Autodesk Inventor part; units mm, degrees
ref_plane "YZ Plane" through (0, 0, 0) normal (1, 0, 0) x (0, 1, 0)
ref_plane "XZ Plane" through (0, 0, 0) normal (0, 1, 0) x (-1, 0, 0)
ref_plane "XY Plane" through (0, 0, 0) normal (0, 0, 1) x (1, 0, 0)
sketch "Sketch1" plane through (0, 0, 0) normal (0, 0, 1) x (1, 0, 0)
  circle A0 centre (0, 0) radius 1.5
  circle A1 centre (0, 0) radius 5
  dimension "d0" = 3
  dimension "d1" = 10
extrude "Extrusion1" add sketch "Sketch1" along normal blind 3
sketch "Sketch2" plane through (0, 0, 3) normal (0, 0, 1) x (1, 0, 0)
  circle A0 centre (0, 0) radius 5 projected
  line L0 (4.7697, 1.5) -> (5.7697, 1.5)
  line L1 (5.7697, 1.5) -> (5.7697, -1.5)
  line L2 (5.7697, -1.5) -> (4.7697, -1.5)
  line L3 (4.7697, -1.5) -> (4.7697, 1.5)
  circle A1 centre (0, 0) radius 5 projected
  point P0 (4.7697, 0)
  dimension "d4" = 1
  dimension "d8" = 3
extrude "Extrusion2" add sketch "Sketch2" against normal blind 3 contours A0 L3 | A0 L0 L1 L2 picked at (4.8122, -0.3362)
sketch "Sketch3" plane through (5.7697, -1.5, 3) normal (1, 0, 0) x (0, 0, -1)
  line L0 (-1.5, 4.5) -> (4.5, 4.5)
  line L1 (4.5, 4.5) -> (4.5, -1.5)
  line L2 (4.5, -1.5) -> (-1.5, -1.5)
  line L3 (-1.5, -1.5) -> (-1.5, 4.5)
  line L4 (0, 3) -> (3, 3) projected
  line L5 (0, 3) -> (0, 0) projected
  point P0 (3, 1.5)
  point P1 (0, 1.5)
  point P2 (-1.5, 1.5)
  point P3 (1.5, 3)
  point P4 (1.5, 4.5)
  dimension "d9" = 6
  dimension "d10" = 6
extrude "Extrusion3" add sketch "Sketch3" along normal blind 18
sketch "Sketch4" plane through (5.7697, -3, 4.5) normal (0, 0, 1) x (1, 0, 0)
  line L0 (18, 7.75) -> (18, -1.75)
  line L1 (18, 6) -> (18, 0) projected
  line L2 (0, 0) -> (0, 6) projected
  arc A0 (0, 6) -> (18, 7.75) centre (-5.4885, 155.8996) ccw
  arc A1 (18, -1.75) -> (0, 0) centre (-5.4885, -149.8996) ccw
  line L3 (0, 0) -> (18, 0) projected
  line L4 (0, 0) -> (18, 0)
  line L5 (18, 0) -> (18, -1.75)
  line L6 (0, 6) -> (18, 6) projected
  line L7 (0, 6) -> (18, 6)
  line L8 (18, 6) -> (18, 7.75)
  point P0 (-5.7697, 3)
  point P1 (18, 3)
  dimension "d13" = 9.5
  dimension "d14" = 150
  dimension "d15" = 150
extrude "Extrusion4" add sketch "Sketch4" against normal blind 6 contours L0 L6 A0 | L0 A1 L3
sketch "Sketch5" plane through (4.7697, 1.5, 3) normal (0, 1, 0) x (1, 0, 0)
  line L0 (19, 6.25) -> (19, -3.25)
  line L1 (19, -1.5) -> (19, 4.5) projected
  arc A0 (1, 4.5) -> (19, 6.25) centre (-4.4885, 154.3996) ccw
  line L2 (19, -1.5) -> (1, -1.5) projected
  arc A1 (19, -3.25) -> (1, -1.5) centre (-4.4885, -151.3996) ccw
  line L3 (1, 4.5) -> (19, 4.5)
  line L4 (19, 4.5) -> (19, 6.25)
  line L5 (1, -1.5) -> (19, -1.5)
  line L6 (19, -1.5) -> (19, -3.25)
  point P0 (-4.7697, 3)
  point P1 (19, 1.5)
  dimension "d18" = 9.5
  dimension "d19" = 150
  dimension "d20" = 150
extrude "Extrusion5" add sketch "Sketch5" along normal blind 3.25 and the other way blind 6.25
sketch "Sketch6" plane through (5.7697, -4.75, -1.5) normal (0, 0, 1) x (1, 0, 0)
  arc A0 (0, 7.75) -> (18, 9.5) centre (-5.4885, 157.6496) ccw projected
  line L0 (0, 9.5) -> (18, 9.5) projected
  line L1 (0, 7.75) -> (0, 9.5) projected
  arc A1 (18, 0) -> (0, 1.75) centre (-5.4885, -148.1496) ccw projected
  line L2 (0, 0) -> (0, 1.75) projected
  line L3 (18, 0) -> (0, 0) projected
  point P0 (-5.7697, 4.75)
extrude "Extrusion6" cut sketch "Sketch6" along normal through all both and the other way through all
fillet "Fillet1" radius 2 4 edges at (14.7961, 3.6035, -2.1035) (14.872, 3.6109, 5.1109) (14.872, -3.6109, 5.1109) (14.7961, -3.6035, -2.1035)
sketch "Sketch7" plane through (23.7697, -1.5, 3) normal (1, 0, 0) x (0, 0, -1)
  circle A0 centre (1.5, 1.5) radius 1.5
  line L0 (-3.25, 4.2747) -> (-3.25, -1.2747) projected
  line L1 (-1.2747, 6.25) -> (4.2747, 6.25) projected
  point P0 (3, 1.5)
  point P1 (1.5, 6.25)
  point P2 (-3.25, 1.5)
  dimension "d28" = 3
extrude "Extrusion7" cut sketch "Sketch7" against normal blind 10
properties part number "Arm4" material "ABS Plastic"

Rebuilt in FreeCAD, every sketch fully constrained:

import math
import FreeCAD as App
import Part
import Sketcher


def edges_at(feature, points):
    """Names of the edges that pass closest to the given points."""
    edges = feature.Shape.Edges
    near = lambda p: min(range(len(edges)), key=lambda i: edges[i].distToShape(Part.Vertex(*p))[0])
    return sorted({f"Edge{near(p) + 1}" for p in points})

doc = App.newDocument("Part")
body = doc.addObject("PartDesign::Body", "Body")

# Sketch on XY plane
sketch1 = body.newObject("Sketcher::SketchObject", "Sketch")
sketch1.AttachmentSupport = (doc.getObject("XY_Plane"), [""])
sketch1.MapMode = "FlatFace"
sketch1.addGeometry([
    Part.Circle(App.Vector(0, 0, 0), App.Vector(0, 0, 1), 5),
    Part.Circle(App.Vector(0, 0, 0), App.Vector(0, 0, 1), 1.5),
], False)
sketch1.addConstraint([
    Sketcher.Constraint("Coincident", 0, 3, -1, 1),
    Sketcher.Constraint("Coincident", 1, 3, -1, 1),
    Sketcher.Constraint("Diameter", 0, 10.0),
    Sketcher.Constraint("Diameter", 1, 3.0),
])
pad1 = body.newObject("PartDesign::Pad", "Pad")
pad1.Profile = sketch1
pad1.Length = 3

# Sketch on XY plane
sketch2 = body.newObject("Sketcher::SketchObject", "Sketch001")
sketch2.AttachmentSupport = (doc.getObject("XY_Plane"), [""])
sketch2.MapMode = "FlatFace"
sketch2.AttachmentOffset = App.Placement(App.Vector(0, 0, 3), App.Rotation())
sketch2.addGeometry([
    Part.LineSegment(App.Vector(4.7697, 1.5, 0), App.Vector(4.7697, -1.5, 0)),
    Part.LineSegment(App.Vector(4.7697, -1.5, 0), App.Vector(5.7697, -1.5, 0)),
    Part.LineSegment(App.Vector(5.7697, -1.5, 0), App.Vector(5.7697, 1.5, 0)),
    Part.LineSegment(App.Vector(5.7697, 1.5, 0), App.Vector(4.7697, 1.5, 0)),
], False)
sketch2.addConstraint([
    Sketcher.Constraint("Coincident", 0, 2, 1, 1),
    Sketcher.Constraint("Coincident", 1, 2, 2, 1),
    Sketcher.Constraint("Coincident", 2, 2, 3, 1),
    Sketcher.Constraint("Coincident", 3, 2, 0, 1),
    Sketcher.Constraint("Vertical", 0),
    Sketcher.Constraint("Horizontal", 1),
    Sketcher.Constraint("Vertical", 2),
    Sketcher.Constraint("Horizontal", 3),
    Sketcher.Constraint("DistanceX", 1, 1, 1, 2, 1.0),
    Sketcher.Constraint("DistanceY", 0, 2, 0, 1, 3.0),
    Sketcher.Constraint("DistanceY", 0, 2, -1, 1, 1.5),
    Sketcher.Constraint("DistanceX", -1, 1, 0, 2, 4.7697),
])
pad2 = body.newObject("PartDesign::Pad", "Pad001")
pad2.Profile = sketch2
pad2.Length = 3
pad2.Reversed = True

# Sketch on YZ plane
sketch3 = body.newObject("Sketcher::SketchObject", "Sketch002")
sketch3.AttachmentSupport = (doc.getObject("YZ_Plane"), [""])
sketch3.MapMode = "FlatFace"
sketch3.AttachmentOffset = App.Placement(App.Vector(0, 0, 5.7697), App.Rotation())
sketch3.addGeometry([
    Part.LineSegment(App.Vector(3, -1.5, 0), App.Vector(3, 4.5, 0)),
    Part.LineSegment(App.Vector(3, 4.5, 0), App.Vector(-3, 4.5, 0)),
    Part.LineSegment(App.Vector(-3, 4.5, 0), App.Vector(-3, -1.5, 0)),
    Part.LineSegment(App.Vector(-3, -1.5, 0), App.Vector(3, -1.5, 0)),
], False)
sketch3.addConstraint([
    Sketcher.Constraint("Coincident", 0, 2, 1, 1),
    Sketcher.Constraint("Coincident", 1, 2, 2, 1),
    Sketcher.Constraint("Coincident", 2, 2, 3, 1),
    Sketcher.Constraint("Coincident", 3, 2, 0, 1),
    Sketcher.Constraint("Vertical", 0),
    Sketcher.Constraint("Horizontal", 1),
    Sketcher.Constraint("Vertical", 2),
    Sketcher.Constraint("Horizontal", 3),
    Sketcher.Constraint("Equal", 3, 0),
    Sketcher.Constraint("DistanceX", 1, 2, 1, 1, 6.0),
    Sketcher.Constraint("DistanceX", -1, 1, 0, 2, 3.0),
    Sketcher.Constraint("DistanceY", -1, 1, 0, 2, 4.5),
])
pad3 = body.newObject("PartDesign::Pad", "Pad002")
pad3.Profile = sketch3
pad3.Length = 18

# Sketch on XY plane
sketch4 = body.newObject("Sketcher::SketchObject", "Sketch003")
sketch4.AttachmentSupport = (doc.getObject("XY_Plane"), [""])
sketch4.MapMode = "FlatFace"
sketch4.AttachmentOffset = App.Placement(App.Vector(0, 0, 4.5), App.Rotation())
sketch4.addGeometry([
    Part.LineSegment(App.Vector(23.7697, 3, 0), App.Vector(23.7697, 4.75, 0)),  # 0
    Part.ArcOfCircle(Part.Circle(App.Vector(0.2812, 152.8996, 0), App.Vector(0, 0, 1), 150.000046), math.radians(-87.90308), math.radians(-80.99098)),  # 1
    Part.LineSegment(App.Vector(5.7697, 3, 0), App.Vector(23.7697, 3, 0)),  # 2
    Part.LineSegment(App.Vector(23.7697, -4.75, 0), App.Vector(23.7697, -3, 0)),  # 3
    Part.LineSegment(App.Vector(23.7697, -3, 0), App.Vector(5.7697, -3, 0)),  # 4
    Part.ArcOfCircle(Part.Circle(App.Vector(0.2812, -152.8996, 0), App.Vector(0, 0, 1), 150.000045), math.radians(80.99098), math.radians(87.90308)),  # 5
], False)
sketch4.addConstraint([
    Sketcher.Constraint("Coincident", 0, 2, 1, 2),
    Sketcher.Constraint("Coincident", 1, 1, 2, 1),
    Sketcher.Constraint("Coincident", 2, 2, 0, 1),
    Sketcher.Constraint("Coincident", 3, 2, 4, 1),
    Sketcher.Constraint("Coincident", 4, 2, 5, 2),
    Sketcher.Constraint("Coincident", 5, 1, 3, 1),
    Sketcher.Constraint("Vertical", 0),
    Sketcher.Constraint("Horizontal", 2),
    Sketcher.Constraint("Vertical", 3),
    Sketcher.Constraint("Horizontal", 4),
    Sketcher.Constraint("Equal", 1, 5),
    Sketcher.Constraint("Symmetric", 1, 3, 5, 3, -1),
    Sketcher.Constraint("Symmetric", 2, 2, 3, 2, -1),
    Sketcher.Constraint("Radius", 1, 150.0),
    Sketcher.Constraint("DistanceY", 5, 1, 0, 2, 9.5),
    Sketcher.Constraint("DistanceX", 2, 1, 2, 2, 18.0),
    Sketcher.Constraint("DistanceY", -1, 1, 1, 1, 3.0),
    Sketcher.Constraint("DistanceX", -1, 1, 1, 3, 0.2812),
])
pad4 = body.newObject("PartDesign::Pad", "Pad003")
pad4.Profile = sketch4
pad4.Length = 6
pad4.Reversed = True

# Sketch on XZ plane
sketch5 = body.newObject("Sketcher::SketchObject", "Sketch004")
sketch5.AttachmentSupport = (doc.getObject("XZ_Plane"), [""])
sketch5.MapMode = "FlatFace"
sketch5.AttachmentOffset = App.Placement(App.Vector(0, 0, -1.5), App.Rotation())
sketch5.addGeometry([
    Part.LineSegment(App.Vector(23.7697, 6.25, 0), App.Vector(23.7697, 4.5, 0)),  # 0
    Part.LineSegment(App.Vector(23.7697, 4.5, 0), App.Vector(5.7697, 4.5, 0)),  # 1
    Part.ArcOfCircle(Part.Circle(App.Vector(0.2812, 154.3996, 0), App.Vector(0, 0, 1), 150.000045), math.radians(-87.90308), math.radians(-80.99098)),  # 2
    Part.LineSegment(App.Vector(23.7697, -1.5, 0), App.Vector(23.7697, -3.25, 0)),  # 3
    Part.ArcOfCircle(Part.Circle(App.Vector(0.2812, -151.3996, 0), App.Vector(0, 0, 1), 150.000046), math.radians(80.99098), math.radians(87.90308)),  # 4
    Part.LineSegment(App.Vector(5.7697, -1.5, 0), App.Vector(23.7697, -1.5, 0)),  # 5
], False)
sketch5.addConstraint([
    Sketcher.Constraint("Coincident", 0, 2, 1, 1),
    Sketcher.Constraint("Coincident", 1, 2, 2, 1),
    Sketcher.Constraint("Coincident", 2, 2, 0, 1),
    Sketcher.Constraint("Coincident", 3, 2, 4, 1),
    Sketcher.Constraint("Coincident", 4, 2, 5, 1),
    Sketcher.Constraint("Coincident", 5, 2, 3, 1),
    Sketcher.Constraint("Vertical", 0),
    Sketcher.Constraint("Horizontal", 1),
    Sketcher.Constraint("Vertical", 3),
    Sketcher.Constraint("Horizontal", 5),
    Sketcher.Constraint("Equal", 2, 4),
    Sketcher.Constraint("Vertical", 2, 3, 4, 3),
    Sketcher.Constraint("Vertical", 2, 2, 3, 2),
    Sketcher.Constraint("Vertical", 1, 2, 4, 2),
    Sketcher.Constraint("Radius", 2, 150.0),
    Sketcher.Constraint("DistanceY", 3, 2, 2, 2, 9.5),
    Sketcher.Constraint("DistanceX", 1, 2, 1, 1, 18.0),
    Sketcher.Constraint("DistanceY", 4, 2, 1, 2, 6.0),
    Sketcher.Constraint("DistanceY", -1, 1, 0, 2, 4.5),
    Sketcher.Constraint("DistanceX", -1, 1, 2, 3, 0.2812),
])
pad5 = body.newObject("PartDesign::Pad", "Pad004")
pad5.Profile = sketch5
pad5.Type = "TwoLengths"
pad5.Length = 3.25
pad5.Length2 = 6.25
pad5.Reversed = True

# Sketch on XY plane
sketch6 = body.newObject("Sketcher::SketchObject", "Sketch005")
sketch6.AttachmentSupport = (doc.getObject("XY_Plane"), [""])
sketch6.MapMode = "FlatFace"
sketch6.AttachmentOffset = App.Placement(App.Vector(0, 0, -1.5), App.Rotation())
sketch6.addGeometry([
    Part.LineSegment(App.Vector(5.7697, 4.75, 0), App.Vector(5.7697, 3, 0)),  # 0
    Part.ArcOfCircle(Part.Circle(App.Vector(0.2812, 152.8996, 0), App.Vector(0, 0, 1), 150.000046), math.radians(-87.90308), math.radians(-80.99098)),  # 1
    Part.LineSegment(App.Vector(23.7697, 4.75, 0), App.Vector(5.7697, 4.75, 0)),  # 2
    Part.LineSegment(App.Vector(5.7697, -4.75, 0), App.Vector(23.7697, -4.75, 0)),  # 3
    Part.ArcOfCircle(Part.Circle(App.Vector(0.2812, -152.8996, 0), App.Vector(0, 0, 1), 150.000045), math.radians(80.99098), math.radians(87.90308)),  # 4
    Part.LineSegment(App.Vector(5.7697, -3, 0), App.Vector(5.7697, -4.75, 0)),  # 5
], False)
sketch6.addConstraint([
    Sketcher.Constraint("Coincident", 0, 2, 1, 1),
    Sketcher.Constraint("Coincident", 1, 2, 2, 1),
    Sketcher.Constraint("Coincident", 2, 2, 0, 1),
    Sketcher.Constraint("Coincident", 3, 2, 4, 1),
    Sketcher.Constraint("Coincident", 4, 2, 5, 1),
    Sketcher.Constraint("Coincident", 5, 2, 3, 1),
    Sketcher.Constraint("Vertical", 0),
    Sketcher.Constraint("Horizontal", 2),
    Sketcher.Constraint("Horizontal", 3),
    Sketcher.Constraint("Vertical", 5),
    Sketcher.Constraint("Equal", 1, 4),
    Sketcher.Constraint("Symmetric", 1, 3, 4, 3, -1),
    Sketcher.Constraint("Symmetric", 2, 2, 5, 2, -1),
    Sketcher.Constraint("Radius", 1, 150.0),
    Sketcher.Constraint("DistanceX", 2, 2, 2, 1, 18.0),
    Sketcher.Constraint("DistanceY", -1, 1, 0, 2, 3.0),
    Sketcher.Constraint("DistanceY", 0, 2, 0, 1, 1.75),
    Sketcher.Constraint("DistanceX", -1, 1, 1, 3, 0.2812),
])
pocket1 = body.newObject("PartDesign::Pocket", "Pocket")
pocket1.Profile = sketch6
pocket1.Type = "ThroughAll"
pocket1.Midplane = True
doc.recompute()

fillet = body.newObject("PartDesign::Fillet", "Fillet")
fillet.Base = (pocket1, edges_at(pocket1, [
    (14.796, 3.603, -2.103),
    (14.872, 3.611, 5.111),
    (14.872, -3.611, 5.111),
    (14.796, -3.603, -2.103),
]))
fillet.Radius = 2

# Sketch on YZ plane
sketch7 = body.newObject("Sketcher::SketchObject", "Sketch006")
sketch7.AttachmentSupport = (doc.getObject("YZ_Plane"), [""])
sketch7.MapMode = "FlatFace"
sketch7.AttachmentOffset = App.Placement(App.Vector(0, 0, 23.7697), App.Rotation())
sketch7.addGeometry(Part.Circle(App.Vector(0, 1.5, 0), App.Vector(0, 0, 1), 1.5), False)
sketch7.addConstraint([
    Sketcher.Constraint("PointOnObject", 0, 3, -2),
    Sketcher.Constraint("Diameter", 0, 3.0),
    Sketcher.Constraint("DistanceY", -1, 1, 0, 3, 1.5),
])
pocket2 = body.newObject("PartDesign::Pocket", "Pocket001")
pocket2.Profile = sketch7
pocket2.Length = 10

doc.recompute()
